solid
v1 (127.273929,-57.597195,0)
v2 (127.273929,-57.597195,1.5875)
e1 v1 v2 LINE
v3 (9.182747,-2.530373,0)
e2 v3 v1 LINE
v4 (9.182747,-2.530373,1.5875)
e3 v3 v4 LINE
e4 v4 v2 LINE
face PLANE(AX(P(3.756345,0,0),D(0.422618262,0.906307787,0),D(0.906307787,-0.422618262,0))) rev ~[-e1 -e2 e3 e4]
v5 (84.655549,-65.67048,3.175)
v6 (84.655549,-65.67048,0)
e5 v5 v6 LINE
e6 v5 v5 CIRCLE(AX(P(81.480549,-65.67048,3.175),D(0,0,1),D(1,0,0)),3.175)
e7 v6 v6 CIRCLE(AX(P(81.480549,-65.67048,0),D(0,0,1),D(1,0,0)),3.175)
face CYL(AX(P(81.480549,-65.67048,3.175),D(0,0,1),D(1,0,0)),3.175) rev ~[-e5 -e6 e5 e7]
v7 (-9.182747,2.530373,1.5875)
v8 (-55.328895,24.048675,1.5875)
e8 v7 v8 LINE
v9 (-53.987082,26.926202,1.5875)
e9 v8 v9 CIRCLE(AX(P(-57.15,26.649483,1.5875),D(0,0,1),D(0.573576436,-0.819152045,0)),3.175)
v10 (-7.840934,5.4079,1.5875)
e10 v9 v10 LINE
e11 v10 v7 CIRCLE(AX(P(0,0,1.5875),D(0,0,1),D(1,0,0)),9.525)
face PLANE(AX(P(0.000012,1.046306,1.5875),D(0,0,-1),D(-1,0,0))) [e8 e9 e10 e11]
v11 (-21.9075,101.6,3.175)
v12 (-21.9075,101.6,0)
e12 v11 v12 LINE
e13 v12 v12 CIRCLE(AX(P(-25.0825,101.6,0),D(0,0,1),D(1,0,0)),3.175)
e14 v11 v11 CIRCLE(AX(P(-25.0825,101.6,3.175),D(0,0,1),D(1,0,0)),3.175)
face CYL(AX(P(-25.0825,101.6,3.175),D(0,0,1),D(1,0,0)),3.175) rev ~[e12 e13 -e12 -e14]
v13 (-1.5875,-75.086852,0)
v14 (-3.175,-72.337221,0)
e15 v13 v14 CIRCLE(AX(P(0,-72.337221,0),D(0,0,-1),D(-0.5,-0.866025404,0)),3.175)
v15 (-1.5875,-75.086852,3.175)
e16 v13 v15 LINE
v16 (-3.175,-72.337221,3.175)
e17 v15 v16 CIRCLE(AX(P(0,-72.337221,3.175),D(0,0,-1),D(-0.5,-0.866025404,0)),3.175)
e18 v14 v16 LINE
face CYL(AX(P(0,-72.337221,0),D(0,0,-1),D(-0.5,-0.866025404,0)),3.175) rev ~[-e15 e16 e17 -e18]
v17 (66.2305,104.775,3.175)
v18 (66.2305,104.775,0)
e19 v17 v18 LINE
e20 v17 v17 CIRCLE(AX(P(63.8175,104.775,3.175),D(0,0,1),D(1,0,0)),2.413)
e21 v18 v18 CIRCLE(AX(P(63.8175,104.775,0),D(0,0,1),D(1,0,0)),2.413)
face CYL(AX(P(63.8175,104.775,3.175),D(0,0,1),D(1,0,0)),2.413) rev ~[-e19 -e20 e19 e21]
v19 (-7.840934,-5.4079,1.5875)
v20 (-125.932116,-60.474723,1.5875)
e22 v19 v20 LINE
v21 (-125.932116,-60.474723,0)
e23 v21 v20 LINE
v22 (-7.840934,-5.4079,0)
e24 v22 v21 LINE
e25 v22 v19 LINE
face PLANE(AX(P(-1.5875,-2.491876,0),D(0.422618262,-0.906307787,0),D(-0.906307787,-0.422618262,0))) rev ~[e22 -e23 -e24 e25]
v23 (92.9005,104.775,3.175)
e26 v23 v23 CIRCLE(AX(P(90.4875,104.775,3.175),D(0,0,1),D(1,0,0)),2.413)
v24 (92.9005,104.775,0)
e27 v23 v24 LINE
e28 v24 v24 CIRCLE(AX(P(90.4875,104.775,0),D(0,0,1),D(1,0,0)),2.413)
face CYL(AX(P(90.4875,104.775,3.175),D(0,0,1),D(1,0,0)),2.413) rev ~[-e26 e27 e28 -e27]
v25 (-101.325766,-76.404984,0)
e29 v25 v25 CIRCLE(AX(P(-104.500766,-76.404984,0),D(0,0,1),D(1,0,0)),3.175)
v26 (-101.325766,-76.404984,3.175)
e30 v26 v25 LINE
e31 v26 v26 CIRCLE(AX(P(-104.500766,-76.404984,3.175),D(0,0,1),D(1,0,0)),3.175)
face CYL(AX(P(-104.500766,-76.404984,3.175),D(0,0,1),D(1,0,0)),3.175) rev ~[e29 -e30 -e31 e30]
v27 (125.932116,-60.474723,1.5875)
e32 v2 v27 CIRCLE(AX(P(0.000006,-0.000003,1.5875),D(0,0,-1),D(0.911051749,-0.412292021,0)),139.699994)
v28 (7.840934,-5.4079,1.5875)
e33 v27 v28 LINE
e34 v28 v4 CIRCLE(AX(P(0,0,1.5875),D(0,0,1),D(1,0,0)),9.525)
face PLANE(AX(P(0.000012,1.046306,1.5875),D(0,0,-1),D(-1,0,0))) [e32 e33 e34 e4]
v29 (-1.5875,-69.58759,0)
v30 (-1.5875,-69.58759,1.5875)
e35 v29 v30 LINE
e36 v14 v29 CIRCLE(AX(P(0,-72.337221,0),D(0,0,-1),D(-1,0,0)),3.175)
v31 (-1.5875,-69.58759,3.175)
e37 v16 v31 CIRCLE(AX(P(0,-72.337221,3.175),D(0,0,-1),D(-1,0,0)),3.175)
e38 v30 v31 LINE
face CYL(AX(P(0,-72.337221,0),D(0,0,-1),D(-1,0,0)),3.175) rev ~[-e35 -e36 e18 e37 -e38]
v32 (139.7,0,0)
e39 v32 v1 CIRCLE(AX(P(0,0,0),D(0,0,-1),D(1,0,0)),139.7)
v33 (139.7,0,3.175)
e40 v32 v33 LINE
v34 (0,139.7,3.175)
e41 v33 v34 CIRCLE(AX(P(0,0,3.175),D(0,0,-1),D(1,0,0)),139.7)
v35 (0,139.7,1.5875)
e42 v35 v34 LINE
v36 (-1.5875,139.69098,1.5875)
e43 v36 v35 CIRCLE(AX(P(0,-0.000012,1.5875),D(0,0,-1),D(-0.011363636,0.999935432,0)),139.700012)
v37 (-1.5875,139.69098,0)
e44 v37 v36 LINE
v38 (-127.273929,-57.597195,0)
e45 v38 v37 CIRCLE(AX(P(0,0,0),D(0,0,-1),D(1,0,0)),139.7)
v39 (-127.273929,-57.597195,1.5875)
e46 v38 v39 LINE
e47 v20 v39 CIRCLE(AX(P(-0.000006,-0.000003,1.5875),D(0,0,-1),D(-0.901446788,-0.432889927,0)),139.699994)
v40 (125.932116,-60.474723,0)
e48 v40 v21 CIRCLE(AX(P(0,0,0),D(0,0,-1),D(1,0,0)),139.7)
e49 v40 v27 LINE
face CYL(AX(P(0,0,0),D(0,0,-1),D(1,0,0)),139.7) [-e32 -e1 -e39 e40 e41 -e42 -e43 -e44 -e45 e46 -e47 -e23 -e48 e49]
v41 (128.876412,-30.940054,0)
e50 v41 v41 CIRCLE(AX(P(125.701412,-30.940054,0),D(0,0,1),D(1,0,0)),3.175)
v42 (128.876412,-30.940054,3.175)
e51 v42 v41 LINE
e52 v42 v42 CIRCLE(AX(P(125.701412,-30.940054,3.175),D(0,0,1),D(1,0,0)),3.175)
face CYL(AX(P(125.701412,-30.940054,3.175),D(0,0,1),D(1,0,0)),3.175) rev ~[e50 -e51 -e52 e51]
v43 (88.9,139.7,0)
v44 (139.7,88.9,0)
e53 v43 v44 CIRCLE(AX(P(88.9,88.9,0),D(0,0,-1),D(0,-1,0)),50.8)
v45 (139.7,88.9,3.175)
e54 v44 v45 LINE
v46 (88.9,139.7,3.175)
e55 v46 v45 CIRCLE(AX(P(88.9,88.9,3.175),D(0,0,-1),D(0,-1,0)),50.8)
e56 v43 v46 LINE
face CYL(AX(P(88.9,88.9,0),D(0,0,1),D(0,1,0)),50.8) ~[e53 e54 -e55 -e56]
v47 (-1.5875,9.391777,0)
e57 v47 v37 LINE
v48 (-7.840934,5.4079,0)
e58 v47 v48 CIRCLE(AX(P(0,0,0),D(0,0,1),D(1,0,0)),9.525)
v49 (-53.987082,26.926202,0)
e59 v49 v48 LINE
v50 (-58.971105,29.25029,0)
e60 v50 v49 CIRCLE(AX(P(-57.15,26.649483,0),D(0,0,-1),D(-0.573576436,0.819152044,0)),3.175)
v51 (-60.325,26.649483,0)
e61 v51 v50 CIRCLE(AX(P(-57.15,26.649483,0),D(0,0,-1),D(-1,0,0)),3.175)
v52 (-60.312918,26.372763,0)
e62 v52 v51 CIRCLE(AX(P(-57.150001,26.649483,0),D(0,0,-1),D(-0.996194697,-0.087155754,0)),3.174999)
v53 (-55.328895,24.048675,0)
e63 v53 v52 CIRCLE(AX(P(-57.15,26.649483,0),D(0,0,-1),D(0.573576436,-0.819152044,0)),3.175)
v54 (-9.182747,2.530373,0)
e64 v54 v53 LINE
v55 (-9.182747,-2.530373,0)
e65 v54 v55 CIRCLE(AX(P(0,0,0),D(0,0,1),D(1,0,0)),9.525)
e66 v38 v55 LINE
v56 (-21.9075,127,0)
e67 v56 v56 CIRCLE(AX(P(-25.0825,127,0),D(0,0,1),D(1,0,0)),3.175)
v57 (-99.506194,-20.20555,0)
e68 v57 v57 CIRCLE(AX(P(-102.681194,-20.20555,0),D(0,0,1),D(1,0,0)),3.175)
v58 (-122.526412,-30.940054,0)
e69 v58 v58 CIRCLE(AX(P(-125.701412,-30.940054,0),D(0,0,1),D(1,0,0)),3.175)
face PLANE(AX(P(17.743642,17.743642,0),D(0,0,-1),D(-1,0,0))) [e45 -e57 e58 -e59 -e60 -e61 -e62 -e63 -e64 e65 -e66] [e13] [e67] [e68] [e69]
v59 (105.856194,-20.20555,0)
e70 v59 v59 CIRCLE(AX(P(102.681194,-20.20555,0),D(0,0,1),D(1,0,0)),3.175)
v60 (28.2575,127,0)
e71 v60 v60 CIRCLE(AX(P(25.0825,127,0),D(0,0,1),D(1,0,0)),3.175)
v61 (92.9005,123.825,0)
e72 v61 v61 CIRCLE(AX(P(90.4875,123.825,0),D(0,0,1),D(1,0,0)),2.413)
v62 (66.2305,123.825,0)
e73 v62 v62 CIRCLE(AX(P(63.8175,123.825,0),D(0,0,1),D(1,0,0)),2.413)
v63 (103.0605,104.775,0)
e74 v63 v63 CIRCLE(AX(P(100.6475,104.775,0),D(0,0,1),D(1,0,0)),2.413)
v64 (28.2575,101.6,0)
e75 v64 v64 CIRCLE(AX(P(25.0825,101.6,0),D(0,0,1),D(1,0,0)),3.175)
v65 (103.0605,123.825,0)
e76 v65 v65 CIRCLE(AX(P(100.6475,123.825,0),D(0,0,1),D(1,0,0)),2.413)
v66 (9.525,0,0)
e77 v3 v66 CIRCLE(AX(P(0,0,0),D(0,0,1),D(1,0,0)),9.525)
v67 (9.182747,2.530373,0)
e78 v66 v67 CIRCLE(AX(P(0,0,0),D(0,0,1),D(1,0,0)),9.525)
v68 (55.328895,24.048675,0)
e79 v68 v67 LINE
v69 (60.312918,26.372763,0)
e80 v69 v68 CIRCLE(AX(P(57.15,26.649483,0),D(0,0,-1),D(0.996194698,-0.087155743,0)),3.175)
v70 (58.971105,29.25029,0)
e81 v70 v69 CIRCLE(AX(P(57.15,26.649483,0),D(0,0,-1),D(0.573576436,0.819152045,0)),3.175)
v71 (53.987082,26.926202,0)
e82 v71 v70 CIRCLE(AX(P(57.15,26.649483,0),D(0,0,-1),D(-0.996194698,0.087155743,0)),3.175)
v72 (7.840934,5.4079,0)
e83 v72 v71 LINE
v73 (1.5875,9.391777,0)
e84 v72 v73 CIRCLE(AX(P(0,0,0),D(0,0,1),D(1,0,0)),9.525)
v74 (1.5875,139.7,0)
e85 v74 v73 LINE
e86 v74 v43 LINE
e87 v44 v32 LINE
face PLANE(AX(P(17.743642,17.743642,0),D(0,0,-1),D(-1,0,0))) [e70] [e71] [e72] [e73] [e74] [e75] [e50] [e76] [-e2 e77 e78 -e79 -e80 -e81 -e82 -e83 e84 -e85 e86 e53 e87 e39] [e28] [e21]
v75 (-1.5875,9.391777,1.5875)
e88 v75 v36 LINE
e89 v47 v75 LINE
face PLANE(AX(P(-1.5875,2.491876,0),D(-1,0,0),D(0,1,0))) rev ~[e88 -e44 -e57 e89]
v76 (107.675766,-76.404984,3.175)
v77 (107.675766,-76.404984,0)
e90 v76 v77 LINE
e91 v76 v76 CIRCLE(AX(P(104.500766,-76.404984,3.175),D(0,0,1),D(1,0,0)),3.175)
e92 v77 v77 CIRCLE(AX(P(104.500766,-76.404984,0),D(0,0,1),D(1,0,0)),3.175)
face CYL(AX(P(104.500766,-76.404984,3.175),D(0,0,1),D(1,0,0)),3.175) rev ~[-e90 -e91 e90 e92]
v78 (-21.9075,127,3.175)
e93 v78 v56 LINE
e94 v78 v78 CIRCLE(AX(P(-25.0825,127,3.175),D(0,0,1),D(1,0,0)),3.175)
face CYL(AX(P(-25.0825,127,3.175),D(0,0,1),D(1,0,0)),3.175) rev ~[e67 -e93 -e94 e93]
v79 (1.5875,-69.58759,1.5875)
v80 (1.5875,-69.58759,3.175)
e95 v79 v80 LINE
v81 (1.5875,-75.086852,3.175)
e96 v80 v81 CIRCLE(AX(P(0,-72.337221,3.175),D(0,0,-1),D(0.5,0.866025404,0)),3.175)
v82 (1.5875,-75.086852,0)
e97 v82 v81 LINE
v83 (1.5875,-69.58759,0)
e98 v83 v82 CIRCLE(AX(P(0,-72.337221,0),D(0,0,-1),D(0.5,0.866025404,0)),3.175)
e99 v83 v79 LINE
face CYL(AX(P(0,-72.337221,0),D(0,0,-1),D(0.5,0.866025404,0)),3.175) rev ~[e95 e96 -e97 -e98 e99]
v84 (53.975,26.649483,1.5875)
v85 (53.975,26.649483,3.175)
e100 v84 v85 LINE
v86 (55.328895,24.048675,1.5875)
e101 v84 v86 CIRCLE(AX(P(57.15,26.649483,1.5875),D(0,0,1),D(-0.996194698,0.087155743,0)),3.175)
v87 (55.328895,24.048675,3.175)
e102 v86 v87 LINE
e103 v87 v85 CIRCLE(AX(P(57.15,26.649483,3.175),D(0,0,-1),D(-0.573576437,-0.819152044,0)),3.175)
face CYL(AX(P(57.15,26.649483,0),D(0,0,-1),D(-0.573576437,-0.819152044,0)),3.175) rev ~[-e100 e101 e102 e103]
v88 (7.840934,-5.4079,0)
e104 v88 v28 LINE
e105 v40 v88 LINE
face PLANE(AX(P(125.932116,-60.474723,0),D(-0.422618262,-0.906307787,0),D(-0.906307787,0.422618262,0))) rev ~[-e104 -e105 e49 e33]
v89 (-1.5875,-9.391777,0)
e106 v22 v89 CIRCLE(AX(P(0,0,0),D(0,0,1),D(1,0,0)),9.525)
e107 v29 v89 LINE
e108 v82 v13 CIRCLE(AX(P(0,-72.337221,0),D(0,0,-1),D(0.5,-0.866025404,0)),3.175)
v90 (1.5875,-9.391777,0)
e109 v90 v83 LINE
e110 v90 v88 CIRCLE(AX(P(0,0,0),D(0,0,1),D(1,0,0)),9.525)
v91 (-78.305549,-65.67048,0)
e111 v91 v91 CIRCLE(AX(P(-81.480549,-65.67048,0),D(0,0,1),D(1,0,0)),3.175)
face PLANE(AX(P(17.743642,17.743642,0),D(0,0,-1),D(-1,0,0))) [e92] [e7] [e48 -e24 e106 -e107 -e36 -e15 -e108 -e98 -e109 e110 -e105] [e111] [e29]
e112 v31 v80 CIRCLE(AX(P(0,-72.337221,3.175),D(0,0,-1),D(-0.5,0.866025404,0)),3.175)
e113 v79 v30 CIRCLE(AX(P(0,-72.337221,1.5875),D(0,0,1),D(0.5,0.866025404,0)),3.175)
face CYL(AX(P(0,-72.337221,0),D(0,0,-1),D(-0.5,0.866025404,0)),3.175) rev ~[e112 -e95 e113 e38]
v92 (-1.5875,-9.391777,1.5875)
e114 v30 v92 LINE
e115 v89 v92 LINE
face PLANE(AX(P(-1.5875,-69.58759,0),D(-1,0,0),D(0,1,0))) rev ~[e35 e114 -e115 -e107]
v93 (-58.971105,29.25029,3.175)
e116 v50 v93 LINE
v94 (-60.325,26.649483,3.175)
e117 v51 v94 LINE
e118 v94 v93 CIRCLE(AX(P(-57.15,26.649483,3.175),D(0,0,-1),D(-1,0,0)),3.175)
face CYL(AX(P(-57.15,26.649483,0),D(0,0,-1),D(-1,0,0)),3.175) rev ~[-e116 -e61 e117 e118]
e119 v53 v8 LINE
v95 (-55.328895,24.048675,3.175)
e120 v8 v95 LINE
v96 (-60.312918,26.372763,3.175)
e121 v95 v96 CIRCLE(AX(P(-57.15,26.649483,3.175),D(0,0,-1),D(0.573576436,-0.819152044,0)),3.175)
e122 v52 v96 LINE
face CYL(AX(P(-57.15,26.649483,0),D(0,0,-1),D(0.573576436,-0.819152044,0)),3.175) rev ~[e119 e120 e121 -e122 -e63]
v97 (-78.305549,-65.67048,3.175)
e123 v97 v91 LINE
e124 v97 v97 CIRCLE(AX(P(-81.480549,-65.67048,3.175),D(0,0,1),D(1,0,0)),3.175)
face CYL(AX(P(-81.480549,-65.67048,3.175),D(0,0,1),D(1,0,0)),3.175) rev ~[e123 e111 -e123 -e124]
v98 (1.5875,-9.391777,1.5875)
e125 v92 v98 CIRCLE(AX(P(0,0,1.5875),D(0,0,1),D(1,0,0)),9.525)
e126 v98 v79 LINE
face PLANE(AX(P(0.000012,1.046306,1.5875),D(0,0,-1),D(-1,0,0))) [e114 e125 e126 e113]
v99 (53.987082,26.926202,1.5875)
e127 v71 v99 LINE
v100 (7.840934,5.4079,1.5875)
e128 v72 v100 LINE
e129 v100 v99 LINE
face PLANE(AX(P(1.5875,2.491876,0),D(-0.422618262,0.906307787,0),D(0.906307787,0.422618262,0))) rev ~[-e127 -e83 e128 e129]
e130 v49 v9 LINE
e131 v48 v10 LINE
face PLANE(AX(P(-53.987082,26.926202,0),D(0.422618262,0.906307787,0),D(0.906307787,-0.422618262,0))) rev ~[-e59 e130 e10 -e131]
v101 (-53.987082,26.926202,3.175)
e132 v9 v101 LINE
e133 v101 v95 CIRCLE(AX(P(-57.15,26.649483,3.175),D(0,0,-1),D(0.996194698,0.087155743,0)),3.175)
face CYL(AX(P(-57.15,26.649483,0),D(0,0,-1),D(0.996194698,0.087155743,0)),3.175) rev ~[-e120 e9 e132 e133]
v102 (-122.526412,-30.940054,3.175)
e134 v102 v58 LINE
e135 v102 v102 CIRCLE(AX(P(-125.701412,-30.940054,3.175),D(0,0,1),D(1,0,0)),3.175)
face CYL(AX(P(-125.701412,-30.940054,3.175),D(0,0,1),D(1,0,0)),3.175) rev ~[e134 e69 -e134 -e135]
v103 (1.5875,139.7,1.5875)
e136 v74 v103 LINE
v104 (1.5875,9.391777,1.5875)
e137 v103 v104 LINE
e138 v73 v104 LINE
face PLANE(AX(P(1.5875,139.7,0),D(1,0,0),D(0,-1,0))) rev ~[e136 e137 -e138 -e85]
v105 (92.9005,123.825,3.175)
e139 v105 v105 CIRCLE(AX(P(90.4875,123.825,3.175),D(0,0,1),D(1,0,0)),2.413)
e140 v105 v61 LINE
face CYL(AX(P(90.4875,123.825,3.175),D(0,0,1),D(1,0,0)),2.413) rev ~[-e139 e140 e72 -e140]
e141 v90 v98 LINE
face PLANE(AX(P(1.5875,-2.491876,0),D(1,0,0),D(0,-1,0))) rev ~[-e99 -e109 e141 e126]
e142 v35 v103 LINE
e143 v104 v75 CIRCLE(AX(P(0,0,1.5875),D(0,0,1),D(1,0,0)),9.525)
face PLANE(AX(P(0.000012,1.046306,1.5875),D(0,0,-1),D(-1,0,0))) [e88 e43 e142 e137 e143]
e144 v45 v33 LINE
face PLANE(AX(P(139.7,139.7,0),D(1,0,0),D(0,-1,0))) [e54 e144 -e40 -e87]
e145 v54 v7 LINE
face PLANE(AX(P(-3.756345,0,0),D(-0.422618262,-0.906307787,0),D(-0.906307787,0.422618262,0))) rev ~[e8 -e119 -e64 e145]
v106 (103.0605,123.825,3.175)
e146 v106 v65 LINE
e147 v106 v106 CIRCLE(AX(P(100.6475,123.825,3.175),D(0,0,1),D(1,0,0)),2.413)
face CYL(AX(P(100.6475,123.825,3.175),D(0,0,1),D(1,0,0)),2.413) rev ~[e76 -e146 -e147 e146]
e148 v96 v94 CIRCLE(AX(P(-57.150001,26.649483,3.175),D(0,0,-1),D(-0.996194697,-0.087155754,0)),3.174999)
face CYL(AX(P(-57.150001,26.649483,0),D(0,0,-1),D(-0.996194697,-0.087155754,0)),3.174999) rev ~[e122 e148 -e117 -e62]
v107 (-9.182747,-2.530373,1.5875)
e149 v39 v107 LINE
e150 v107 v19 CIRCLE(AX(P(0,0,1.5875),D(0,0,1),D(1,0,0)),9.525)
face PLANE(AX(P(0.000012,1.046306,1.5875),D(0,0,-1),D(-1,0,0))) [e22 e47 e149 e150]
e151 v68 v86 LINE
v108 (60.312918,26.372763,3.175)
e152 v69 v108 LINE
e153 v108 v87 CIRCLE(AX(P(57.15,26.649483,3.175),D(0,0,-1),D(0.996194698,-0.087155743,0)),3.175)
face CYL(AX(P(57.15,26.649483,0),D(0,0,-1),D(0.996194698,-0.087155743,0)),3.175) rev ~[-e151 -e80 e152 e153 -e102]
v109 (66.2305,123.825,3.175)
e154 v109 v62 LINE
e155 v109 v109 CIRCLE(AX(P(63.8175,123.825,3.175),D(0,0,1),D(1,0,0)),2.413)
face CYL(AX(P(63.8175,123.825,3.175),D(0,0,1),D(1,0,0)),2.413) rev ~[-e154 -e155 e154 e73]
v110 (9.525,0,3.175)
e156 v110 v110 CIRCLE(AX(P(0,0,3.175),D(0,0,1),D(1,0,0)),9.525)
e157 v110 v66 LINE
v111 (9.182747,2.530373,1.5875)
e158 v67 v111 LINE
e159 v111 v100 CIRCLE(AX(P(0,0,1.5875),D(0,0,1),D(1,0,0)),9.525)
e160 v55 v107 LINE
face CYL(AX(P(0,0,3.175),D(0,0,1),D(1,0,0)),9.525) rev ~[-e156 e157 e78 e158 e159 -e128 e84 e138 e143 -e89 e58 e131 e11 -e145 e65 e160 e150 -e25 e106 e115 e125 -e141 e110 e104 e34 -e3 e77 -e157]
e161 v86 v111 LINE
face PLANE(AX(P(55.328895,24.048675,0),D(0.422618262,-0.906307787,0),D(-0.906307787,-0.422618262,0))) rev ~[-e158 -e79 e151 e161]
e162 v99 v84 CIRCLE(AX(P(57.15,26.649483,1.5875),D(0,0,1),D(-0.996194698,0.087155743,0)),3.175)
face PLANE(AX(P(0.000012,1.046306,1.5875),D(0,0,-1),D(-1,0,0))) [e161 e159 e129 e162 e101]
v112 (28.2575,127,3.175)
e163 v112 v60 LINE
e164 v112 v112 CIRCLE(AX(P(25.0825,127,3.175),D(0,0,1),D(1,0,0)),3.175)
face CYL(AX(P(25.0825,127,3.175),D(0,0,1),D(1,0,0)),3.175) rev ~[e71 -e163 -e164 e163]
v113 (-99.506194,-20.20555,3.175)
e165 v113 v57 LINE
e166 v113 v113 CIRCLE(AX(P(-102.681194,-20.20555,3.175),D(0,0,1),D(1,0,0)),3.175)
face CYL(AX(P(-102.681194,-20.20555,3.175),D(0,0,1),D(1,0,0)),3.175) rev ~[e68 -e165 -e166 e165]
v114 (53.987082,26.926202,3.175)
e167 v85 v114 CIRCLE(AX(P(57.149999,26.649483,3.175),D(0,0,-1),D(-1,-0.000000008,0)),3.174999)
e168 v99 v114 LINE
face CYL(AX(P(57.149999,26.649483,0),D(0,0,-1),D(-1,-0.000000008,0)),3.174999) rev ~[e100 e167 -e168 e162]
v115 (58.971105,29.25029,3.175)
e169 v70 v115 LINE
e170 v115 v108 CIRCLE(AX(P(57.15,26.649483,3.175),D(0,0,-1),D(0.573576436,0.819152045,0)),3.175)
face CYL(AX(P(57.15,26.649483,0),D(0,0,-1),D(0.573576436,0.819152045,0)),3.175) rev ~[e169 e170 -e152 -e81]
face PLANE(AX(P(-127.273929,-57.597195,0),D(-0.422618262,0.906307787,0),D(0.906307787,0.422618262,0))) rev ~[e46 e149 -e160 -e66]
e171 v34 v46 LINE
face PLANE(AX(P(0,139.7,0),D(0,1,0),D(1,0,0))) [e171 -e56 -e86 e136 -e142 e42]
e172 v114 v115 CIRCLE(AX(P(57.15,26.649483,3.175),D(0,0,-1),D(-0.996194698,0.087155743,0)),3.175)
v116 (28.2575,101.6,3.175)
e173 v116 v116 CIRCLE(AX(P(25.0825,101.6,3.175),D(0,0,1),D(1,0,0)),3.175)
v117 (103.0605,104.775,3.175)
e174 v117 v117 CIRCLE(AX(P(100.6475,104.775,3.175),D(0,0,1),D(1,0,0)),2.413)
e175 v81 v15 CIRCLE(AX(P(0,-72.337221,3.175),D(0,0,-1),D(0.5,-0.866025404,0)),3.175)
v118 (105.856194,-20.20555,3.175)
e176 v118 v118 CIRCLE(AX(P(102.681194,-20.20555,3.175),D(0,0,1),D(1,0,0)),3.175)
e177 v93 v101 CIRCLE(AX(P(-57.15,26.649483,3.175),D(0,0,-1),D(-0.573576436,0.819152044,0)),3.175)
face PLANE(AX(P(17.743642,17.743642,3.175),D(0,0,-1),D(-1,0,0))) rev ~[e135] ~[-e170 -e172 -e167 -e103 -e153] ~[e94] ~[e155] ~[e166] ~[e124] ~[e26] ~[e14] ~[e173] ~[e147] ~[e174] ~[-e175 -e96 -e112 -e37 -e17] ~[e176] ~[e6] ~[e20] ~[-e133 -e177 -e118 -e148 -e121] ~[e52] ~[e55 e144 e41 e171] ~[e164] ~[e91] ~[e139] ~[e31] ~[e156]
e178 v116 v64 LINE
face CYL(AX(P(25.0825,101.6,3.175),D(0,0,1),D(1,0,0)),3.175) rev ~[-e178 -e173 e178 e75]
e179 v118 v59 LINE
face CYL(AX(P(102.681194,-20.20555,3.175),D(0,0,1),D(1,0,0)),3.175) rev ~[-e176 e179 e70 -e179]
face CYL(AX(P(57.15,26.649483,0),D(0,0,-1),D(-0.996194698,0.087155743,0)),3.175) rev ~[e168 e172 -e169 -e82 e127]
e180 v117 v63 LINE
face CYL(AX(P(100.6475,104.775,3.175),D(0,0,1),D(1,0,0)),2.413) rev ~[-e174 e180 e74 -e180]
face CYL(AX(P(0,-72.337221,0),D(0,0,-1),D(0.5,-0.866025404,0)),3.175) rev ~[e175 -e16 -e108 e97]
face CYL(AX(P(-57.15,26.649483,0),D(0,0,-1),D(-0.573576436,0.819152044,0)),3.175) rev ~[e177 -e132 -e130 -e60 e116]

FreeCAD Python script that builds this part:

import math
import FreeCAD as App
import Part
import Sketcher

V = App.Vector
Q = App.Units.Quantity


def edges_at(feature, points):
    """Names of the edges that pass closest to the given points."""
    edges = feature.Shape.Edges
    near = lambda p: min(range(len(edges)), key=lambda i: edges[i].distToShape(Part.Vertex(*p))[0])
    return sorted({f"Edge{near(p) + 1}" for p in points})

doc = App.newDocument("Part")
body = doc.addObject("PartDesign::Body", "Body")

# Sketch on XY plane
sketch1 = body.newObject("Sketcher::SketchObject", "Sketch")
sketch1.AttachmentSupport = (doc.getObject("XY_Plane"), [""])
sketch1.MapMode = "FlatFace"
sketch1.addGeometry(Part.LineSegment(V(140, 140, 0), V(0, 140, 0)), False)
sketch1.addGeometry(Part.ArcOfCircle(Part.Circle(V(0, 0, 0), V(0, 0, 1), 140), math.radians(90), math.radians(360)), False)
sketch1.addGeometry(Part.LineSegment(V(140, 0, 0), V(140, 140, 0)), False)
sketch1.addConstraint(Sketcher.Constraint("Tangent", 0, 2, 1, 1))
sketch1.addConstraint(Sketcher.Constraint("Tangent", 1, 2, 2, 1))
sketch1.addConstraint(Sketcher.Constraint("Coincident", 2, 2, 0, 1))
sketch1.addConstraint(Sketcher.Constraint("Horizontal", 0))
sketch1.addConstraint(Sketcher.Constraint("Vertical", 2))
sketch1.addConstraint(Sketcher.Constraint("Coincident", 1, 3, -1, 1))
sketch1.addConstraint(Sketcher.Constraint("Radius", 1, Q("5.5 in")))
pad1 = body.newObject("PartDesign::Pad", "Pad")
pad1.Profile = sketch1
pad1.Length = Q("0.125 in")

# Sketch on XY plane
sketch2 = body.newObject("Sketcher::SketchObject", "Sketch001")
sketch2.AttachmentSupport = (doc.getObject("XY_Plane"), [""])
sketch2.MapMode = "FlatFace"
sketch2.addGeometry(Part.ArcOfCircle(Part.Circle(V(0.000006, -0.000003, 0), V(0, 0, 1), 139.699994), math.radians(-25.651102), math.radians(-24.348898)), False)
sketch2.addGeometry(Part.LineSegment(V(125.932116, -60.474723, 0), V(1.5875, -2.491876, 0)), False)
sketch2.addGeometry(Part.LineSegment(V(1.5875, -2.491876, 0), V(1.5875, -69.58759, 0)), False)
sketch2.addGeometry(Part.ArcOfCircle(Part.Circle(V(0, -72.337221, 0), V(0, 0, 1), 3.175), math.radians(60), math.radians(120)), False)
sketch2.addGeometry(Part.LineSegment(V(-1.5875, -69.58759, 0), V(-1.5875, -2.491876, 0)), False)
sketch2.addGeometry(Part.LineSegment(V(-1.5875, -2.491876, 0), V(-125.932116, -60.474723, 0)), False)
sketch2.addGeometry(Part.ArcOfCircle(Part.Circle(V(-0.000006, -0.000003, 0), V(0, 0, 1), 139.699994), math.radians(-155.651102), math.radians(-154.348898)), False)
sketch2.addGeometry(Part.LineSegment(V(-127.273929, -57.597195, 0), V(-3.756345, 0, 0)), False)
sketch2.addGeometry(Part.LineSegment(V(-3.756345, 0, 0), V(-55.328895, 24.048675, 0)), False)
sketch2.addGeometry(Part.ArcOfCircle(Part.Circle(V(-57.15, 26.649483, 0), V(0, 0, 1), 3.175), math.radians(-55), math.radians(5)), False)
sketch2.addGeometry(Part.LineSegment(V(-53.987082, 26.926202, 0), V(-1.5875, 2.491876, 0)), False)
sketch2.addGeometry(Part.LineSegment(V(-1.5875, 2.491876, 0), V(-1.5875, 139.69098, 0)), False)
sketch2.addGeometry(Part.ArcOfCircle(Part.Circle(V(0, -0.000012, 0), V(0, 0, 1), 139.700012), math.radians(90), math.radians(90.651102)), False)
sketch2.addGeometry(Part.LineSegment(V(0, 139.7, 0), V(1.5875, 139.7, 0)), False)
sketch2.addGeometry(Part.LineSegment(V(1.5875, 139.7, 0), V(1.5875, 2.491876, 0)), False)
sketch2.addGeometry(Part.LineSegment(V(1.5875, 2.491876, 0), V(53.987082, 26.926202, 0)), False)
sketch2.addGeometry(Part.ArcOfCircle(Part.Circle(V(57.15, 26.649483, 0), V(0, 0, 1), 3.175), math.radians(175), math.radians(235)), False)
sketch2.addGeometry(Part.LineSegment(V(55.328895, 24.048675, 0), V(3.756345, 0, 0)), False)
sketch2.addGeometry(Part.LineSegment(V(3.756345, 0, 0), V(127.273929, -57.597195, 0)), False)
sketch2.addConstraint(Sketcher.Constraint("Coincident", 0, 1, 1, 1))
sketch2.addConstraint(Sketcher.Constraint("Coincident", 1, 2, 2, 1))
sketch2.addConstraint(Sketcher.Constraint("Coincident", 2, 2, 3, 1))
sketch2.addConstraint(Sketcher.Constraint("Coincident", 3, 2, 4, 1))
sketch2.addConstraint(Sketcher.Constraint("Coincident", 4, 2, 5, 1))
sketch2.addConstraint(Sketcher.Constraint("Coincident", 5, 2, 6, 2))
sketch2.addConstraint(Sketcher.Constraint("Coincident", 6, 1, 7, 1))
sketch2.addConstraint(Sketcher.Constraint("Coincident", 7, 2, 8, 1))
sketch2.addConstraint(Sketcher.Constraint("Coincident", 8, 2, 9, 1))
sketch2.addConstraint(Sketcher.Constraint("Coincident", 9, 2, 10, 1))
sketch2.addConstraint(Sketcher.Constraint("Coincident", 10, 2, 11, 1))
sketch2.addConstraint(Sketcher.Constraint("Coincident", 11, 2, 12, 2))
sketch2.addConstraint(Sketcher.Constraint("Coincident", 12, 1, 13, 1))
sketch2.addConstraint(Sketcher.Constraint("Coincident", 13, 2, 14, 1))
sketch2.addConstraint(Sketcher.Constraint("Coincident", 14, 2, 15, 1))
sketch2.addConstraint(Sketcher.Constraint("Coincident", 15, 2, 16, 1))
sketch2.addConstraint(Sketcher.Constraint("Coincident", 16, 2, 17, 1))
sketch2.addConstraint(Sketcher.Constraint("Coincident", 17, 2, 18, 1))
sketch2.addConstraint(Sketcher.Constraint("Coincident", 18, 2, 0, 2))
sketch2.addConstraint(Sketcher.Constraint("Vertical", 2))
sketch2.addConstraint(Sketcher.Constraint("Vertical", 4))
sketch2.addConstraint(Sketcher.Constraint("Vertical", 11))
sketch2.addConstraint(Sketcher.Constraint("Horizontal", 13))
sketch2.addConstraint(Sketcher.Constraint("Vertical", 14))
sketch2.addConstraint(Sketcher.Constraint("Coincident", 0, 3, -1, 1))
sketch2.addConstraint(Sketcher.Constraint("Coincident", 6, 3, -1, 1))
sketch2.addConstraint(Sketcher.Constraint("PointOnObject", 3, 3, -2))
sketch2.addConstraint(Sketcher.Constraint("PointOnObject", 12, 3, -2))
sketch2.addConstraint(Sketcher.Constraint("PointOnObject", 7, 2, -1))
sketch2.addConstraint(Sketcher.Constraint("PointOnObject", 12, 1, -2))
sketch2.addConstraint(Sketcher.Constraint("PointOnObject", 17, 2, -1))
sketch2.addConstraint(Sketcher.Constraint("Radius", 3, Q("0.125 in")))
sketch2.addConstraint(Sketcher.Constraint("Radius", 9, Q("0.125 in")))
sketch2.addConstraint(Sketcher.Constraint("Radius", 16, Q("0.125 in")))
sketch2.addConstraint(Sketcher.Constraint("DistanceY", -1, 1, 12, 1, Q("5.5 in")))
sketch2.addConstraint(Sketcher.Constraint("DistanceX", 9, 3, 16, 3, Q("4.5 in")))
sketch2.addConstraint(Sketcher.Constraint("DistanceX", 13, 1, 13, 2, Q("0.0625 in")))
sketch2.addConstraint(Sketcher.Constraint("DistanceX", 9, 3, -1, 1, Q("2.25 in")))
sketch2.addConstraint(Sketcher.Constraint("DistanceX", -1, 1, 1, 2, Q("0.0625 in")))
sketch2.addConstraint(Sketcher.Constraint("DistanceX", 3, 2, -1, 1, Q("0.0625 in")))
sketch2.addConstraint(Sketcher.Constraint("DistanceX", 10, 2, -1, 1, Q("0.0625 in")))
sketch2.addConstraint(Sketcher.Constraint("Radius", 12, Q("139.700012 mm")))
sketch2.addConstraint(Sketcher.Constraint("Radius", 0, Q("139.699994 mm")))
sketch2.addConstraint(Sketcher.Constraint("Radius", 6, Q("139.699994 mm")))
sketch2.addConstraint(Sketcher.Constraint("DistanceY", 3, 3, 0, 1, Q("11.862498 mm")))
sketch2.addConstraint(Sketcher.Constraint("DistanceY", 3, 3, 5, 2, Q("11.862498 mm")))
sketch2.addConstraint(Sketcher.Constraint("DistanceY", 14, 2, 16, 2, Q("21.556799 mm")))
sketch2.addConstraint(Sketcher.Constraint("Distance", 10, Q("57.816542 mm")))
sketch2.addConstraint(Sketcher.Constraint("Distance", 15, Q("57.816542 mm")))
sketch2.addConstraint(Sketcher.Constraint("DistanceY", 2, 2, 2, 1, Q("67.095714 mm")))
sketch2.addConstraint(Sketcher.Constraint("DistanceY", 4, 1, 4, 2, Q("67.095714 mm")))
sketch2.addConstraint(Sketcher.Constraint("DistanceY", 11, 1, 11, 2, Q("137.199104 mm")))
sketch2.addConstraint(Sketcher.Constraint("DistanceY", 14, 2, 14, 1, Q("137.208124 mm")))
sketch2.addConstraint(Sketcher.Constraint("DistanceY", 3, 3, -1, 1, Q("72.337221 mm")))
sketch2.addConstraint(Sketcher.Constraint("DistanceX", 6, 1, -1, 1, Q("127.273929 mm")))
sketch2.addConstraint(Sketcher.Constraint("DistanceX", 9, 2, -1, 1, Q("53.987082 mm")))
sketch2.addConstraint(Sketcher.Constraint("DistanceX", -1, 1, 15, 2, Q("53.987082 mm")))
sketch2.addConstraint(Sketcher.Constraint("DistanceX", -1, 1, 18, 2, Q("127.273929 mm")))
sketch2.addConstraint(Sketcher.Constraint("DistanceX", 7, 2, 6, 3, Q("3.756339 mm")))
sketch2.addConstraint(Sketcher.Constraint("DistanceX", 8, 2, 7, 2, Q("51.57255 mm")))
sketch2.addConstraint(Sketcher.Constraint("DistanceX", 0, 3, 17, 2, Q("3.756339 mm")))
pocket1 = body.newObject("PartDesign::Pocket", "Pocket")
pocket1.Profile = sketch2
pocket1.Length = Q("0.0625 in")
pocket1.Reversed = True

# Sketch on XY plane
sketch3 = body.newObject("Sketcher::SketchObject", "Sketch002")
sketch3.AttachmentSupport = (doc.getObject("XY_Plane"), [""])
sketch3.MapMode = "FlatFace"
sketch3.AttachmentOffset = App.Placement(V(0, 0, 0.125 * 25.4), App.Rotation())
sketch3.addGeometry(Part.Circle(V(0, 0, 0), V(0, 0, 1), 10), False)
sketch3.addConstraint(Sketcher.Constraint("Coincident", 0, 3, -1, 1))
sketch3.addConstraint(Sketcher.Constraint("Diameter", 0, Q("0.75 in")))
pocket2 = body.newObject("PartDesign::Pocket", "Pocket001")
pocket2.Profile = sketch3
pocket2.Type = "ThroughAll"

# Sketch on XY plane
sketch4 = body.newObject("Sketcher::SketchObject", "Sketch003")
sketch4.AttachmentSupport = (doc.getObject("XY_Plane"), [""])
sketch4.MapMode = "FlatFace"
sketch4.addGeometry(Part.ArcOfCircle(Part.Circle(V(57.15, 26.65, 0), V(0, 0, 1), 3.18), math.radians(-180), math.radians(-125)), False)
sketch4.addGeometry(Part.ArcOfCircle(Part.Circle(V(57.15, 26.65, 0), V(0, 0, 1), 3.17), math.radians(175), math.radians(180)), False)
sketch4.addGeometry(Part.ArcOfCircle(Part.Circle(V(57.15, 26.65, 0), V(0, 0, 1), 3.17), math.radians(55), math.radians(175)), False)
sketch4.addGeometry(Part.ArcOfCircle(Part.Circle(V(57.15, 26.65, 0), V(0, 0, 1), 3.17), math.radians(-5), math.radians(55)), False)
sketch4.addGeometry(Part.ArcOfCircle(Part.Circle(V(57.15, 26.65, 0), V(0, 0, 1), 3.17), math.radians(-125), math.radians(-5)), False)
sketch4.addGeometry(Part.ArcOfCircle(Part.Circle(V(-57.15, 26.65, 0), V(0, 0, 1), 3.17), math.radians(-55), math.radians(5)), False)
sketch4.addGeometry(Part.ArcOfCircle(Part.Circle(V(-57.15, 26.65, 0), V(0, 0, 1), 3.17), math.radians(-175), math.radians(-55)), False)
sketch4.addGeometry(Part.ArcOfCircle(Part.Circle(V(-57.15, 26.65, 0), V(0, 0, 1), 3.17), math.radians(180), math.radians(185)), False)
sketch4.addGeometry(Part.ArcOfCircle(Part.Circle(V(-57.15, 26.65, 0), V(0, 0, 1), 3.17), math.radians(125), math.radians(180)), False)
sketch4.addGeometry(Part.ArcOfCircle(Part.Circle(V(-57.15, 26.65, 0), V(0, 0, 1), 3.17), math.radians(5), math.radians(125)), False)
sketch4.addGeometry(Part.ArcOfCircle(Part.Circle(V(0, -72.34, 0), V(0, 0, 1), 3.17), math.radians(-60), math.radians(60)), False)
sketch4.addGeometry(Part.ArcOfCircle(Part.Circle(V(0, -72.34, 0), V(0, 0, 1), 3.17), math.radians(-120), math.radians(-60)), False)
sketch4.addGeometry(Part.ArcOfCircle(Part.Circle(V(0, -72.34, 0), V(0, 0, 1), 3.17), math.radians(180), math.radians(240)), False)
sketch4.addGeometry(Part.ArcOfCircle(Part.Circle(V(0, -72.34, 0), V(0, 0, 1), 3.17), math.radians(120), math.radians(180)), False)
sketch4.addGeometry(Part.ArcOfCircle(Part.Circle(V(0, -72.34, 0), V(0, 0, 1), 3.17), math.radians(60), math.radians(120)), False)
sketch4.addConstraint(Sketcher.Constraint("Tangent", 0, 1, 1, 2))
sketch4.addConstraint(Sketcher.Constraint("Tangent", 1, 1, 2, 2))
sketch4.addConstraint(Sketcher.Constraint("Tangent", 2, 1, 3, 2))
sketch4.addConstraint(Sketcher.Constraint("Tangent", 3, 1, 4, 2))
sketch4.addConstraint(Sketcher.Constraint("Tangent", 4, 1, 0, 2))
sketch4.addConstraint(Sketcher.Constraint("Tangent", 5, 1, 6, 2))
sketch4.addConstraint(Sketcher.Constraint("Tangent", 6, 1, 7, 2))
sketch4.addConstraint(Sketcher.Constraint("Tangent", 7, 1, 8, 2))
sketch4.addConstraint(Sketcher.Constraint("Tangent", 8, 1, 9, 2))
sketch4.addConstraint(Sketcher.Constraint("Tangent", 9, 1, 5, 2))
sketch4.addConstraint(Sketcher.Constraint("Tangent", 10, 1, 11, 2))
sketch4.addConstraint(Sketcher.Constraint("Tangent", 11, 1, 12, 2))
sketch4.addConstraint(Sketcher.Constraint("Tangent", 12, 1, 13, 2))
sketch4.addConstraint(Sketcher.Constraint("Tangent", 13, 1, 14, 2))
sketch4.addConstraint(Sketcher.Constraint("Tangent", 14, 1, 10, 2))
sketch4.addConstraint(Sketcher.Constraint("Coincident", 2, 3, 0, 3))
sketch4.addConstraint(Sketcher.Constraint("Coincident", 7, 3, 5, 3))
sketch4.addConstraint(Sketcher.Constraint("Coincident", 12, 3, 10, 3))
sketch4.addConstraint(Sketcher.Constraint("Equal", 4, 5))
sketch4.addConstraint(Sketcher.Constraint("Equal", 9, 10))
sketch4.addConstraint(Sketcher.Constraint("Symmetric", 0, 3, 5, 3, -2))
sketch4.addConstraint(Sketcher.Constraint("Symmetric", 10, 1, 11, 1, -2))
sketch4.addConstraint(Sketcher.Constraint("Horizontal", 9, 3, 0, 1))
sketch4.addConstraint(Sketcher.Constraint("Horizontal", 4, 1, 5, 1))
sketch4.addConstraint(Sketcher.Constraint("Horizontal", 3, 1, 6, 1))
sketch4.addConstraint(Sketcher.Constraint("Horizontal", 0, 1, 7, 1))
sketch4.addConstraint(Sketcher.Constraint("Horizontal", 2, 1, 8, 1))
sketch4.addConstraint(Sketcher.Constraint("Horizontal", 1, 1, 9, 1))
sketch4.addConstraint(Sketcher.Constraint("Horizontal", 14, 3, 12, 1))
sketch4.addConstraint(Sketcher.Constraint("Horizontal", 13, 1, 14, 1))
sketch4.addConstraint(Sketcher.Constraint("Vertical", 11, 1, 13, 1))
sketch4.addConstraint(Sketcher.Constraint("Radius", 0, Q("0.125 in")))
sketch4.addConstraint(Sketcher.Constraint("DistanceX", 5, 3, 1, 3, Q("4.5 in")))
sketch4.addConstraint(Sketcher.Constraint("DistanceX", -1, 1, 10, 1, Q("0.0625 in")))
sketch4.addConstraint(Sketcher.Constraint("DistanceY", 10, 3, -1, 1, Q("72.337221 mm")))
sketch4.addConstraint(Sketcher.Constraint("DistanceX", -1, 1, 1, 1, Q("53.987082 mm")))
sketch4.addConstraint(Sketcher.Constraint("DistanceY", -1, 1, 2, 1, Q("29.25029 mm")))
sketch4.addConstraint(Sketcher.Constraint("DistanceX", -1, 1, 3, 1, Q("60.312918 mm")))
sketch4.addConstraint(Sketcher.Constraint("DistanceY", -1, 1, 0, 3, Q("26.649483 mm")))
sketch4.addConstraint(Sketcher.Constraint("DistanceX", -1, 1, 4, 1, Q("55.328895 mm")))
pocket3 = body.newObject("PartDesign::Pocket", "Pocket002")
pocket3.Profile = sketch4
pocket3.Type = "ThroughAll"
pocket3.Reversed = True
doc.recompute()

fillet = body.newObject("PartDesign::Fillet", "Fillet")
fillet.Base = (pocket3, edges_at(pocket3, [(139.7, 139.7, 1.587)]))
fillet.Radius = Q("2 in")

# Sketch on XY plane
sketch5 = body.newObject("Sketcher::SketchObject", "Sketch004")
sketch5.AttachmentSupport = (doc.getObject("XY_Plane"), [""])
sketch5.MapMode = "FlatFace"
sketch5.AttachmentOffset = App.Placement(V(0, 0, 0.125 * 25.4), App.Rotation())
sketch5.addGeometry(Part.Circle(V(25.1, 101.6, 0), V(0, 0, 1), 3.2), False)
sketch5.addGeometry(Part.Circle(V(-25.1, 101.6, 0), V(0, 0, 1), 3.2), False)
sketch5.addGeometry(Part.Circle(V(-25.1, 127, 0), V(0, 0, 1), 3.2), False)
sketch5.addGeometry(Part.Circle(V(25.1, 127, 0), V(0, 0, 1), 3.2), False)
sketch5.addGeometry(Part.Circle(V(102.7, -20.2, 0), V(0, 0, 1), 3.2), False)
sketch5.addGeometry(Part.Circle(V(125.7, -30.9, 0), V(0, 0, 1), 3.2), False)
sketch5.addGeometry(Part.Circle(V(81.5, -65.7, 0), V(0, 0, 1), 3.2), False)
sketch5.addGeometry(Part.Circle(V(104.5, -76.4, 0), V(0, 0, 1), 3.2), False)
sketch5.addGeometry(Part.Circle(V(-81.5, -65.7, 0), V(0, 0, 1), 3.2), False)
sketch5.addGeometry(Part.Circle(V(-104.5, -76.4, 0), V(0, 0, 1), 3.2), False)
sketch5.addGeometry(Part.Circle(V(-102.7, -20.2, 0), V(0, 0, 1), 3.2), False)
sketch5.addGeometry(Part.Circle(V(-125.7, -30.9, 0), V(0, 0, 1), 3.2), False)
sketch5.addConstraint(Sketcher.Constraint("Equal", 0, 1))
sketch5.addConstraint(Sketcher.Constraint("Equal", 1, 2))
sketch5.addConstraint(Sketcher.Constraint("Equal", 2, 3))
sketch5.addConstraint(Sketcher.Constraint("Equal", 3, 4))
sketch5.addConstraint(Sketcher.Constraint("Equal", 4, 5))
sketch5.addConstraint(Sketcher.Constraint("Equal", 5, 6))
sketch5.addConstraint(Sketcher.Constraint("Equal", 6, 7))
sketch5.addConstraint(Sketcher.Constraint("Equal", 7, 8))
sketch5.addConstraint(Sketcher.Constraint("Equal", 8, 9))
sketch5.addConstraint(Sketcher.Constraint("Equal", 9, 10))
sketch5.addConstraint(Sketcher.Constraint("Equal", 10, 11))
sketch5.addConstraint(Sketcher.Constraint("Symmetric", 0, 3, 1, 3, -2))
sketch5.addConstraint(Sketcher.Constraint("Symmetric", 2, 3, 3, 3, -2))
sketch5.addConstraint(Sketcher.Constraint("Symmetric", 6, 3, 8, 3, -2))
sketch5.addConstraint(Sketcher.Constraint("Symmetric", 7, 3, 9, 3, -2))
sketch5.addConstraint(Sketcher.Constraint("Symmetric", 4, 3, 10, 3, -2))
sketch5.addConstraint(Sketcher.Constraint("Symmetric", 5, 3, 11, 3, -2))
sketch5.addConstraint(Sketcher.Constraint("Vertical", 1, 3, 2, 3))
sketch5.addConstraint(Sketcher.Constraint("Diameter", 0, Q("0.25 in")))
sketch5.addConstraint(Sketcher.Constraint("DistanceY", -1, 1, 0, 3, Q("4 in")))
sketch5.addConstraint(Sketcher.Constraint("DistanceY", -1, 1, 2, 3, Q("5 in")))
sketch5.addConstraint(Sketcher.Constraint("DistanceX", 1, 3, 0, 3, Q("1.975 in")))
sketch5.addConstraint(Sketcher.Constraint("DistanceY", 4, 3, -1, 1, Q("20.20555 mm")))
sketch5.addConstraint(Sketcher.Constraint("DistanceX", -1, 1, 5, 3, Q("125.701412 mm")))
sketch5.addConstraint(Sketcher.Constraint("DistanceX", -1, 1, 6, 3, Q("81.480549 mm")))
sketch5.addConstraint(Sketcher.Constraint("DistanceY", 6, 3, -1, 1, Q("65.67048 mm")))
sketch5.addConstraint(Sketcher.Constraint("DistanceY", 7, 3, 5, 3, Q("45.46493 mm")))
sketch5.addConstraint(Sketcher.Constraint("DistanceX", 9, 3, 4, 3, Q("207.18196 mm")))
sketch5.addConstraint(Sketcher.Constraint("DistanceX", -1, 1, 4, 3, Q("102.681194 mm")))
sketch5.addConstraint(Sketcher.Constraint("DistanceY", 5, 3, -1, 1, Q("30.940054 mm")))
pocket4 = body.newObject("PartDesign::Pocket", "Pocket003")
pocket4.Profile = sketch5
pocket4.Type = "ThroughAll"

# Sketch on XY plane
sketch6 = body.newObject("Sketcher::SketchObject", "Sketch005")
sketch6.AttachmentSupport = (doc.getObject("XY_Plane"), [""])
sketch6.MapMode = "FlatFace"
sketch6.AttachmentOffset = App.Placement(V(0, 0, 0.125 * 25.4), App.Rotation())
sketch6.addGeometry(Part.Circle(V(90.5, 104.8, 0), V(0, 0, 1), 2.4), False)
sketch6.addGeometry(Part.Circle(V(90.5, 123.8, 0), V(0, 0, 1), 2.4), False)
sketch6.addGeometry(Part.Circle(V(100.6, 104.8, 0), V(0, 0, 1), 2.4), False)
sketch6.addGeometry(Part.Circle(V(100.6, 123.8, 0), V(0, 0, 1), 2.4), False)
sketch6.addGeometry(Part.Circle(V(63.8, 104.8, 0), V(0, 0, 1), 2.4), False)
sketch6.addGeometry(Part.Circle(V(63.8, 123.8, 0), V(0, 0, 1), 2.4), False)
sketch6.addConstraint(Sketcher.Constraint("Equal", 0, 1))
sketch6.addConstraint(Sketcher.Constraint("Equal", 1, 2))
sketch6.addConstraint(Sketcher.Constraint("Equal", 2, 3))
sketch6.addConstraint(Sketcher.Constraint("Equal", 3, 4))
sketch6.addConstraint(Sketcher.Constraint("Equal", 4, 5))
sketch6.addConstraint(Sketcher.Constraint("Horizontal", 0, 3, 2, 3))
sketch6.addConstraint(Sketcher.Constraint("Horizontal", 1, 3, 3, 3))
sketch6.addConstraint(Sketcher.Constraint("Horizontal", 2, 3, 4, 3))
sketch6.addConstraint(Sketcher.Constraint("Horizontal", 3, 3, 5, 3))
sketch6.addConstraint(Sketcher.Constraint("Vertical", 0, 3, 1, 3))
sketch6.addConstraint(Sketcher.Constraint("Vertical", 2, 3, 3, 3))
sketch6.addConstraint(Sketcher.Constraint("Vertical", 4, 3, 5, 3))
sketch6.addConstraint(Sketcher.Constraint("Diameter", 0, Q("0.19 in")))
sketch6.addConstraint(Sketcher.Constraint("DistanceX", 0, 3, 2, 3, Q("0.4 in")))
sketch6.addConstraint(Sketcher.Constraint("DistanceY", 0, 3, 1, 3, Q("0.75 in")))
sketch6.addConstraint(Sketcher.Constraint("DistanceX", 4, 3, 0, 3, Q("1.05 in")))
sketch6.addConstraint(Sketcher.Constraint("DistanceX", -1, 1, 0, 3, Q("3.5625 in")))
sketch6.addConstraint(Sketcher.Constraint("DistanceY", -1, 1, 0, 3, Q("4.125 in")))
pocket5 = body.newObject("PartDesign::Pocket", "Pocket004")
pocket5.Profile = sketch6
pocket5.Type = "ThroughAll"

doc.recompute()
